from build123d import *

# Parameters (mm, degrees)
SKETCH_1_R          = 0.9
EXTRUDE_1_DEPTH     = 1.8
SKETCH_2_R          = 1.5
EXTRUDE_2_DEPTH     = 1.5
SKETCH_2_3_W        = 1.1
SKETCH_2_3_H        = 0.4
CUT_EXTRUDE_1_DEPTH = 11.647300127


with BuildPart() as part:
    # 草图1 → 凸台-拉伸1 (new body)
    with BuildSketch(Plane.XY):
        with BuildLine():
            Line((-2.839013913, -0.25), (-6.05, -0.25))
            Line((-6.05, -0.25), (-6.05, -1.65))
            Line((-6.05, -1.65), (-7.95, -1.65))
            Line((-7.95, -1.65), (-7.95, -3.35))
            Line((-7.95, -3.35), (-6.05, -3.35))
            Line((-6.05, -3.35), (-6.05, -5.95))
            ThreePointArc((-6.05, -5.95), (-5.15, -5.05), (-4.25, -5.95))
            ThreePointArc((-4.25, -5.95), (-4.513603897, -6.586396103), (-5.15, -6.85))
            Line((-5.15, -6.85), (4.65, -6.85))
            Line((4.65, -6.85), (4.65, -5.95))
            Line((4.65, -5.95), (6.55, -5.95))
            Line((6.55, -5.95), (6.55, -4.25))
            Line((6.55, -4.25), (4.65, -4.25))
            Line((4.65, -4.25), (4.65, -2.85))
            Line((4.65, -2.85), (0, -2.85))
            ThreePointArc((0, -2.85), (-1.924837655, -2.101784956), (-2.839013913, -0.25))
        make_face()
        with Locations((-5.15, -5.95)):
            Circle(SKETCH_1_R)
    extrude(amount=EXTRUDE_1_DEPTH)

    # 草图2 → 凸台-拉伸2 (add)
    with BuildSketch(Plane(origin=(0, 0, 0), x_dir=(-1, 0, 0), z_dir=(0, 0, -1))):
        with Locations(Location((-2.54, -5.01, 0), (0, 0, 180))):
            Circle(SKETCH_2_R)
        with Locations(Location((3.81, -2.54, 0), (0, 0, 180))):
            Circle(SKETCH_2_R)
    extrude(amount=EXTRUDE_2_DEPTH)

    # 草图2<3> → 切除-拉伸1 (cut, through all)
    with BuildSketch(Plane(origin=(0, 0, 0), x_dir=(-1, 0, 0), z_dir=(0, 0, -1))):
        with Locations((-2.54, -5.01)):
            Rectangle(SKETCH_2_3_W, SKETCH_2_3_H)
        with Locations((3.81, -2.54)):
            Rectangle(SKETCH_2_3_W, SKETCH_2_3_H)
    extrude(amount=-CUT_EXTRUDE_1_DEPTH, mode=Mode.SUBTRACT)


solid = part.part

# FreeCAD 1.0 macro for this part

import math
import FreeCAD as App
import Part
import Sketcher


def add_polygon(sketch, points):
    """Adds a closed chain of lines whose ends are joined by coincident constraints."""
    first, n = sketch.GeometryCount, len(points)
    for a, b in zip(points, points[1:] + points[:1]):
        sketch.addGeometry(Part.LineSegment(App.Vector(*a, 0), App.Vector(*b, 0)), False)
    for i in range(n):
        sketch.addConstraint(Sketcher.Constraint("Coincident", first + i, 2, first + (i + 1) % n, 1))

doc = App.newDocument("Part")
body = doc.addObject("PartDesign::Body", "Body")

# Sketch on XY plane
sketch1 = body.newObject("Sketcher::SketchObject", "Sketch")
sketch1.AttachmentSupport = (doc.getObject("XY_Plane"), [""])
sketch1.MapMode = "FlatFace"
sketch1.addGeometry([
    Part.LineSegment(App.Vector(-2.8, -0.2, 0), App.Vector(-6, -0.2, 0)),  # 0
    Part.LineSegment(App.Vector(-6, -0.2, 0), App.Vector(-6, -1.6, 0)),  # 1
    Part.LineSegment(App.Vector(-6, -1.6, 0), App.Vector(-8, -1.6, 0)),  # 2
    Part.LineSegment(App.Vector(-8, -1.6, 0), App.Vector(-8, -3.4, 0)),  # 3
    Part.LineSegment(App.Vector(-8, -3.4, 0), App.Vector(-6, -3.4, 0)),  # 4
    Part.LineSegment(App.Vector(-6, -3.4, 0), App.Vector(-6, -6, 0)),  # 5
    Part.ArcOfCircle(Part.Circle(App.Vector(-5.2, -6, 0), App.Vector(0, 0, 1), 0.9), math.radians(180), math.radians(270)),  # 6
    Part.LineSegment(App.Vector(-5.2, -6.8, 0), App.Vector(4.7, -6.8, 0)),  # 7
    Part.LineSegment(App.Vector(4.7, -6.8, 0), App.Vector(4.7, -6, 0)),  # 8
    Part.LineSegment(App.Vector(4.7, -6, 0), App.Vector(6.5, -6, 0)),  # 9
    Part.LineSegment(App.Vector(6.5, -6, 0), App.Vector(6.5, -4.2, 0)),  # 10
    Part.LineSegment(App.Vector(6.5, -4.2, 0), App.Vector(4.7, -4.2, 0)),  # 11
    Part.LineSegment(App.Vector(4.7, -4.2, 0), App.Vector(4.7, -2.9, 0)),  # 12
    Part.LineSegment(App.Vector(4.7, -2.9, 0), App.Vector(0, -2.9, 0)),  # 13
    Part.ArcOfCircle(Part.Circle(App.Vector(0, 0, 0), App.Vector(0, 0, 1), 2.9), math.radians(-175), math.radians(-90)),  # 14
], False)
sketch1.addConstraint([
    Sketcher.Constraint("Coincident", 0, 2, 1, 1),
    Sketcher.Constraint("Coincident", 1, 2, 2, 1),
    Sketcher.Constraint("Coincident", 2, 2, 3, 1),
    Sketcher.Constraint("Coincident", 3, 2, 4, 1),
    Sketcher.Constraint("Coincident", 4, 2, 5, 1),
    Sketcher.Constraint("Tangent", 5, 2, 6, 1),
    Sketcher.Constraint("Tangent", 6, 2, 7, 1),
    Sketcher.Constraint("Coincident", 7, 2, 8, 1),
    Sketcher.Constraint("Coincident", 8, 2, 9, 1),
    Sketcher.Constraint("Coincident", 9, 2, 10, 1),
    Sketcher.Constraint("Coincident", 10, 2, 11, 1),
    Sketcher.Constraint("Coincident", 11, 2, 12, 1),
    Sketcher.Constraint("Coincident", 12, 2, 13, 1),
    Sketcher.Constraint("Tangent", 13, 2, 14, 2),
    Sketcher.Constraint("Coincident", 14, 1, 0, 1),
    Sketcher.Constraint("Horizontal", 0),
    Sketcher.Constraint("Vertical", 1),
    Sketcher.Constraint("Horizontal", 2),
    Sketcher.Constraint("Vertical", 3),
    Sketcher.Constraint("Horizontal", 4),
    Sketcher.Constraint("Vertical", 5),
    Sketcher.Constraint("Horizontal", 7),
    Sketcher.Constraint("Vertical", 8),
    Sketcher.Constraint("Horizontal", 9),
    Sketcher.Constraint("Vertical", 10),
    Sketcher.Constraint("Horizontal", 11),
    Sketcher.Constraint("Vertical", 12),
    Sketcher.Constraint("Horizontal", 13),
    Sketcher.Constraint("Coincident", 14, 3, -1, 1),
    Sketcher.Constraint("Horizontal", 5, 2, 8, 2),
    Sketcher.Constraint("Vertical", 1, 2, 4, 2),
    Sketcher.Constraint("Vertical", 8, 2, 11, 2),
    Sketcher.Constraint("Equal", 4, 9),
    Sketcher.Constraint("Equal", 3, 10),
    Sketcher.Constraint("Equal", 1, 12),
    Sketcher.Constraint("Radius", 6, 0.9),
    Sketcher.Constraint("Radius", 14, 2.85),
    Sketcher.Constraint("DistanceX", 2, 2, 2, 1, 1.9),
    Sketcher.Constraint("DistanceX", 7, 1, 7, 2, 9.8),
    Sketcher.Constraint("DistanceY", 1, 2, 1, 1, 1.4),
    Sketcher.Constraint("DistanceY", 3, 2, 3, 1, 1.7),
    Sketcher.Constraint("DistanceY", 5, 2, 5, 1, 2.6),
    Sketcher.Constraint("DistanceX", 13, 2, 13, 1, 4.65),
])
pad1 = body.newObject("PartDesign::Pad", "Pad")
pad1.Profile = sketch1
pad1.Length = 1.8

# Sketch on XY plane
sketch2 = body.newObject("Sketcher::SketchObject", "Sketch001")
sketch2.AttachmentSupport = (doc.getObject("XY_Plane"), [""])
sketch2.MapMode = "FlatFace"
sketch2.addGeometry([
    Part.Circle(App.Vector(2.5, -5, 0), App.Vector(0, 0, 1), 1.5),
    Part.Circle(App.Vector(-3.8, -2.5, 0), App.Vector(0, 0, 1), 1.5),
], False)
sketch2.addConstraint([
    Sketcher.Constraint("Equal", 0, 1),
    Sketcher.Constraint("Diameter", 0, 3.0),
    Sketcher.Constraint("DistanceX", -1, 1, 0, 3, 2.54),
    Sketcher.Constraint("DistanceY", 0, 3, -1, 1, 5.01),
    Sketcher.Constraint("DistanceX", 1, 3, -1, 1, 3.81),
    Sketcher.Constraint("DistanceY", 1, 3, -1, 1, 2.54),
])
pad2 = body.newObject("PartDesign::Pad", "Pad001")
pad2.Profile = sketch2
pad2.Length = 1.5
pad2.Reversed = True

# Sketch on XY plane
sketch3 = body.newObject("Sketcher::SketchObject", "Sketch002")
sketch3.AttachmentSupport = (doc.getObject("XY_Plane"), [""])
sketch3.MapMode = "FlatFace"
add_polygon(sketch3, [(3.09, -4.81), (3.09, -5.21), (1.99, -5.21), (1.99, -4.81)])  # lines 0-3
add_polygon(sketch3, [(-3.26, -2.34), (-3.26, -2.74), (-4.36, -2.74), (-4.36, -2.34)])  # lines 4-7
sketch3.addConstraint([
    Sketcher.Constraint("Vertical", 0),
    Sketcher.Constraint("Horizontal", 1),
    Sketcher.Constraint("Vertical", 2),
    Sketcher.Constraint("Horizontal", 3),
    Sketcher.Constraint("Vertical", 4),
    Sketcher.Constraint("Horizontal", 5),
    Sketcher.Constraint("Vertical", 6),
    Sketcher.Constraint("Horizontal", 7),
    Sketcher.Constraint("Equal", 3, 5),
    Sketcher.Constraint("Equal", 2, 4),
    Sketcher.Constraint("DistanceX", 1, 2, 1, 1, 1.1),
    Sketcher.Constraint("DistanceY", 0, 2, 0, 1, 0.4),
    Sketcher.Constraint("DistanceX", -1, 1, 0, 2, 3.09),
    Sketcher.Constraint("DistanceY", 0, 2, -1, 1, 5.21),
    Sketcher.Constraint("DistanceX", 4, 2, -1, 1, 3.26),
    Sketcher.Constraint("DistanceY", 4, 2, -1, 1, 2.74),
])
pocket1 = body.newObject("PartDesign::Pocket", "Pocket")
pocket1.Profile = sketch3
pocket1.Type = "ThroughAll"
pocket1.Reversed = True

doc.recompute()
